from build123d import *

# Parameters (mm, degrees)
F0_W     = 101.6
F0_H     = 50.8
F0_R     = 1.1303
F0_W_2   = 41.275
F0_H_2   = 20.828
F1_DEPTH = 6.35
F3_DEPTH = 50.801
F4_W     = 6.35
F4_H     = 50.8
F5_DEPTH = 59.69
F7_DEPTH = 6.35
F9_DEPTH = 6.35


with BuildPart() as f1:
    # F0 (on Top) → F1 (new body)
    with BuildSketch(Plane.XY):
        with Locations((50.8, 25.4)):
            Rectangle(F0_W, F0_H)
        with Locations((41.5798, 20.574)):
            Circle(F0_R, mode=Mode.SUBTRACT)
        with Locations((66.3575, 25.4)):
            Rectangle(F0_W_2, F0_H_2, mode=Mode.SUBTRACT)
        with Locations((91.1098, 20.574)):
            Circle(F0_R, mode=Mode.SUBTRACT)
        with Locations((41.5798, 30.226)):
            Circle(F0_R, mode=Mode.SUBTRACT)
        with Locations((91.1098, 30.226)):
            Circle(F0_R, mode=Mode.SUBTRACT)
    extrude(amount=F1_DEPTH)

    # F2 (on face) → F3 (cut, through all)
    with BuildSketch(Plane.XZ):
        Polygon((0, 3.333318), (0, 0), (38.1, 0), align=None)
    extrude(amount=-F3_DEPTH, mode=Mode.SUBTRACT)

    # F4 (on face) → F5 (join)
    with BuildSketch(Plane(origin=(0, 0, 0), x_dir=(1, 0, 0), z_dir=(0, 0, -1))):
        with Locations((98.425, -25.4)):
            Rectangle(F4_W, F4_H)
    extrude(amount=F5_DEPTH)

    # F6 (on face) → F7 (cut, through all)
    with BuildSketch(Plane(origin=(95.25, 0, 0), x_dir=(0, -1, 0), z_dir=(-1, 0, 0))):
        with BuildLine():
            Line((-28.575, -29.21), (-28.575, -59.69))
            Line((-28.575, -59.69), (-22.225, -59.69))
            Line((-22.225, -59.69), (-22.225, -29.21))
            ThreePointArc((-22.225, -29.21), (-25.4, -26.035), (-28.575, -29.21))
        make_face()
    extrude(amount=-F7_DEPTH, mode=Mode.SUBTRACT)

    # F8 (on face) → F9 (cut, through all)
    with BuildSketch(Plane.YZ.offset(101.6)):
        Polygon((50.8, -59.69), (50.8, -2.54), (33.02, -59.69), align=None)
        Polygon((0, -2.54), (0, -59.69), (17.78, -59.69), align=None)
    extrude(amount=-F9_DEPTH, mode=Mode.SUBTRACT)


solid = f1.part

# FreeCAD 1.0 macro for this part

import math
import FreeCAD as App
import Part
import Sketcher
from FreeCAD import Vector
Q = App.Units.Quantity


def add_polygon(sketch, points):
    """Adds a closed chain of lines whose ends are joined by coincident constraints."""
    first, n = sketch.GeometryCount, len(points)
    for a, b in zip(points, points[1:] + points[:1]):
        sketch.addGeometry(Part.LineSegment(App.Vector(*a, 0), App.Vector(*b, 0)), False)
    for i in range(n):
        sketch.addConstraint(Sketcher.Constraint("Coincident", first + i, 2, first + (i + 1) % n, 1))

doc = App.newDocument("Part")
body = doc.addObject("PartDesign::Body", "Body")

# Sketch on XY plane
sketch1 = doc.addObject("Sketcher::SketchObject", "Sketch")
body.addObject(sketch1)
sketch1.AttachmentSupport = (doc.XY_Plane, [""])
sketch1.MapMode = "FlatFace"
add_polygon(sketch1, [(0, 50.8), (0, 0), (101.6, 0), (101.6, 50.8)])  # lines 0-3
sketch1.addGeometry(Part.Circle(Vector(41.6, 20.6, 0), Vector(0, 0, 1), 1.1), False)  # 4
sketch1.addGeometry(Part.Circle(Vector(91.1, 20.6, 0), Vector(0, 0, 1), 1.1), False)  # 5
sketch1.addGeometry(Part.Circle(Vector(41.6, 30.2, 0), Vector(0, 0, 1), 1.1), False)  # 6
add_polygon(sketch1, [(87, 15), (45.7, 15), (45.7, 35.8), (87, 35.8)])  # lines 7-10
sketch1.addGeometry(Part.Circle(Vector(91.1, 30.2, 0), Vector(0, 0, 1), 1.1), False)  # 11
sketch1.addConstraint([
    Sketcher.Constraint("Vertical", 0),
    Sketcher.Constraint("Horizontal", 1),
    Sketcher.Constraint("Vertical", 2),
    Sketcher.Constraint("Horizontal", 3),
    Sketcher.Constraint("Horizontal", 7),
    Sketcher.Constraint("Vertical", 8),
    Sketcher.Constraint("Horizontal", 9),
    Sketcher.Constraint("Vertical", 10),
    Sketcher.Constraint("Coincident", 0, 2, -1, 1),
    Sketcher.Constraint("Equal", 4, 5),
    Sketcher.Constraint("Equal", 5, 6),
    Sketcher.Constraint("Equal", 6, 11),
    Sketcher.Constraint("Horizontal", 4, 3, 5, 3),
    Sketcher.Constraint("Horizontal", 6, 3, 11, 3),
    Sketcher.Constraint("Vertical", 4, 3, 6, 3),
    Sketcher.Constraint("Vertical", 5, 3, 11, 3),
    Sketcher.Constraint("DistanceX", 1, 1, 1, 2, Q("4 in")),
    Sketcher.Constraint("DistanceY", 0, 2, 0, 1, Q("2 in")),
    Sketcher.Constraint("Diameter", 4, Q("0.089 in")),
    Sketcher.Constraint("DistanceY", 8, 1, 8, 2, Q("0.82 in")),
    Sketcher.Constraint("DistanceX", -1, 1, 7, 2, Q("1.8 in")),
    Sketcher.Constraint("DistanceY", 7, 2, 6, 3, Q("0.6 in")),
    Sketcher.Constraint("DistanceY", 4, 3, 8, 2, Q("0.6 in")),
    Sketcher.Constraint("DistanceX", 7, 2, 7, 1, Q("1.625 in")),
    Sketcher.Constraint("DistanceY", -1, 1, 4, 3, Q("0.81 in")),
    Sketcher.Constraint("DistanceX", 4, 3, 5, 3, Q("1.95 in")),
    Sketcher.Constraint("DistanceX", -1, 1, 4, 3, Q("1.637 in")),
])
pad1 = doc.addObject("PartDesign::Pad", "Pad")
body.addObject(pad1)
pad1.Profile = sketch1
pad1.Length = Q("0.25 in")

# Sketch on XZ plane
sketch2 = doc.addObject("Sketcher::SketchObject", "Sketch001")
body.addObject(sketch2)
sketch2.AttachmentSupport = (doc.XZ_Plane, [""])
sketch2.MapMode = "FlatFace"
add_polygon(sketch2, [(0, 3.3), (0, 0), (38.1, 0)])  # lines 0-2
sketch2.addConstraint([
    Sketcher.Constraint("Vertical", 0),
    Sketcher.Constraint("Horizontal", 1),
    Sketcher.Constraint("Coincident", 0, 2, -1, 1),
    Sketcher.Constraint("DistanceX", 1, 1, 1, 2, Q("1.5 in")),
    Sketcher.Constraint("Angle", 2, Q("175 deg")),
])
pocket1 = doc.addObject("PartDesign::Pocket", "Pocket")
body.addObject(pocket1)
pocket1.Profile = sketch2
pocket1.Type = "ThroughAll"

# Sketch on XY plane
sketch3 = doc.addObject("Sketcher::SketchObject", "Sketch002")
body.addObject(sketch3)
sketch3.AttachmentSupport = (doc.XY_Plane, [""])
sketch3.MapMode = "FlatFace"
add_polygon(sketch3, [(95, 0), (95, 51), (102, 51), (102, 0)])  # lines 0-3
sketch3.addConstraint([
    Sketcher.Constraint("Vertical", 0),
    Sketcher.Constraint("Horizontal", 1),
    Sketcher.Constraint("Vertical", 2),
    Sketcher.Constraint("Horizontal", 3),
    Sketcher.Constraint("PointOnObject", 2, 2, -1),
    Sketcher.Constraint("DistanceY", 0, 1, 0, 2, Q("2 in")),
    Sketcher.Constraint("DistanceX", -1, 1, 1, 2, Q("4 in")),
    Sketcher.Constraint("DistanceX", 1, 1, 1, 2, Q("0.25 in")),
])
pad2 = doc.addObject("PartDesign::Pad", "Pad001")
body.addObject(pad2)
pad2.Profile = sketch3
pad2.Length = Q("2.35 in")
pad2.Reversed = True

# Sketch on YZ plane
sketch4 = doc.addObject("Sketcher::SketchObject", "Sketch003")
body.addObject(sketch4)
sketch4.AttachmentSupport = (doc.YZ_Plane, [""])
sketch4.MapMode = "FlatFace"
sketch4.AttachmentOffset = App.Placement(Vector(0, 0, 3.75 * 25.4), App.Rotation())
sketch4.addGeometry([
    Part.LineSegment(Vector(28.6, -29.2, 0), Vector(28.6, -59.7, 0)),
    Part.LineSegment(Vector(28.6, -59.7, 0), Vector(22.2, -59.7, 0)),
    Part.LineSegment(Vector(22.2, -59.7, 0), Vector(22.2, -29.2, 0)),
    Part.ArcOfCircle(Part.Circle(Vector(25.4, -29.2, 0), Vector(0, 0, 1), 3.2), math.radians(0), math.radians(180)),
], False)
sketch4.addConstraint([
    Sketcher.Constraint("Coincident", 0, 2, 1, 1),
    Sketcher.Constraint("Coincident", 1, 2, 2, 1),
    Sketcher.Constraint("Tangent", 2, 2, 3, 2),
    Sketcher.Constraint("Tangent", 3, 1, 0, 1),
    Sketcher.Constraint("Vertical", 0),
    Sketcher.Constraint("Horizontal", 1),
    Sketcher.Constraint("Vertical", 2),
    Sketcher.Constraint("DistanceY", 0, 2, 0, 1, Q("1.2 in")),
    Sketcher.Constraint("DistanceX", -1, 1, 3, 3, Q("1 in")),
    Sketcher.Constraint("Radius", 3, Q("0.125 in")),
    Sketcher.Constraint("DistanceY", 3, 3, -1, 1, Q("1.15 in")),
])
pocket2 = doc.addObject("PartDesign::Pocket", "Pocket001")
body.addObject(pocket2)
pocket2.Profile = sketch4
pocket2.Type = "ThroughAll"
pocket2.Reversed = True

# Sketch on YZ plane
sketch5 = doc.addObject("Sketcher::SketchObject", "Sketch004")
body.addObject(sketch5)
sketch5.AttachmentSupport = (doc.YZ_Plane, [""])
sketch5.MapMode = "FlatFace"
sketch5.AttachmentOffset = App.Placement(Vector(0, 0, 4 * 25.4), App.Rotation())
add_polygon(sketch5, [(51, -60), (51, -3), (33, -60)])  # lines 0-2
add_polygon(sketch5, [(0, -3), (0, -60), (18, -60)])  # lines 3-5
sketch5.addConstraint([
    Sketcher.Constraint("Vertical", 0),
    Sketcher.Constraint("Horizontal", 2),
    Sketcher.Constraint("Vertical", 3),
    Sketcher.Constraint("Horizontal", 4),
    Sketcher.Constraint("PointOnObject", 3, 2, -2),
    Sketcher.Constraint("Horizontal", 2, 2, 3, 2),
    Sketcher.Constraint("Horizontal", 0, 2, 5, 2),
    Sketcher.Constraint("Equal", 2, 4),
    Sketcher.Constraint("DistanceX", 2, 1, 2, 2, Q("0.7 in")),
    Sketcher.Constraint("DistanceX", -1, 1, 0, 2, Q("2 in")),
    Sketcher.Constraint("DistanceY", 0, 1, 0, 2, Q("2.25 in")),
    Sketcher.Constraint("DistanceY", 0, 2, -1, 1, Q("0.1 in")),
])
pocket3 = doc.addObject("PartDesign::Pocket", "Pocket002")
body.addObject(pocket3)
pocket3.Profile = sketch5
pocket3.Type = "ThroughAll"

doc.recompute()
